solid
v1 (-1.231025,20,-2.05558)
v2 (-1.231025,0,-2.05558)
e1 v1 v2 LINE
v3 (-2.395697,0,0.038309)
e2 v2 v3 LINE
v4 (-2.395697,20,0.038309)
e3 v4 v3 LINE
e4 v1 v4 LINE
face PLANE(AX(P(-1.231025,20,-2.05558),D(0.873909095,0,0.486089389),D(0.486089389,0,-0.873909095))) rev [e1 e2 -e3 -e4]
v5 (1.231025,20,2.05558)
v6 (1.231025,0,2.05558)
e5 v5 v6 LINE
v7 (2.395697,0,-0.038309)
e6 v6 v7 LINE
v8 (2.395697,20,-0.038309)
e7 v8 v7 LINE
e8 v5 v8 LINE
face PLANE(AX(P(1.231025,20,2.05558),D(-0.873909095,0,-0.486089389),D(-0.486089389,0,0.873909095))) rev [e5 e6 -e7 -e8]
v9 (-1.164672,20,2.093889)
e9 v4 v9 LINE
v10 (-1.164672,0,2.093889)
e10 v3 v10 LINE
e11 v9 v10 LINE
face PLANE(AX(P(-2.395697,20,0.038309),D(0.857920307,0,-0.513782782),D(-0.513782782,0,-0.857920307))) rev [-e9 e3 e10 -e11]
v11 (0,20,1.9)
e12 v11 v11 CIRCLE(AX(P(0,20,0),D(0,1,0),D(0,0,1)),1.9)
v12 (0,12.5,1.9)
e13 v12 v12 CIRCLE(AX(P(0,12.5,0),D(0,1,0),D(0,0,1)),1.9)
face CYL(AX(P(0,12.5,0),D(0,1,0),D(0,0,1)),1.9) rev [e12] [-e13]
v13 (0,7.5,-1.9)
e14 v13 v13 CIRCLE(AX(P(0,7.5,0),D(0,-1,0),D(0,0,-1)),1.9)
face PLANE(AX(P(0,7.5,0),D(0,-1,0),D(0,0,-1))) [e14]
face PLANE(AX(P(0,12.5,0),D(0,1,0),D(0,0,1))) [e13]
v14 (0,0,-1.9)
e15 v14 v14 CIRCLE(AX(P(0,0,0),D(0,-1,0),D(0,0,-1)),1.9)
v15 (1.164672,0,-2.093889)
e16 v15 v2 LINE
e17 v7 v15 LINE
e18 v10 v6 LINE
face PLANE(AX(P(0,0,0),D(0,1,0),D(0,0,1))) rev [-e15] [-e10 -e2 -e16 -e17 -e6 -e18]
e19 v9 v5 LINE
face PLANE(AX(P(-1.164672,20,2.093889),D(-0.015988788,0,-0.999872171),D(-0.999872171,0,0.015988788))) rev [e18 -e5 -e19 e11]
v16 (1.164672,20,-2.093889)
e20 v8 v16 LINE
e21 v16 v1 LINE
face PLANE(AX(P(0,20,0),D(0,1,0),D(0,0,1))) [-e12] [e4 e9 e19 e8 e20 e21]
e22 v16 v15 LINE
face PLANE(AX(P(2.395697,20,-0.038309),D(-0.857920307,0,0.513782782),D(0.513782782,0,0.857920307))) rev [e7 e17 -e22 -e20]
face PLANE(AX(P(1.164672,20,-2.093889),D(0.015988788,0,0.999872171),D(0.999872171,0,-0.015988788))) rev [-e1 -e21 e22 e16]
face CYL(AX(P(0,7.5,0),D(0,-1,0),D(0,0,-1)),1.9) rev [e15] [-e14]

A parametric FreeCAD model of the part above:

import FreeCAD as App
import Part
import Sketcher
from FreeCAD import Vector

doc = App.newDocument("Part")
params = doc.addObject("Spreadsheet::Sheet", "Params")
for row, (alias, value) in enumerate([
    ("pad1_length", "20 mm"),
    ("sketch2_diameter", "3.8 mm"),
    ("pocket1_length", "7.5 mm"),
    ("sketch3_diameter", "3.8 mm"),
    ("pocket2_length", "7.5 mm"),
], start=1):
    params.set(f"A{row}", alias)
    params.set(f"B{row}", "=" + value)
    params.setAlias(f"B{row}", alias)

body = doc.addObject("PartDesign::Body", "Body")

sketch1 = body.newObject("Sketcher::SketchObject", "Sketch")
sketch1.AttachmentSupport = (doc.getObject("XZ_Plane"), [""])
sketch1.MapMode = "FlatFace"
sketch1.addGeometry([
    Part.LineSegment(Vector(1.2, 2.1, 0), Vector(2.4, 0, 0)),
    Part.LineSegment(Vector(2.4, 0, 0), Vector(1.2, -2.1, 0)),
    Part.LineSegment(Vector(1.2, -2.1, 0), Vector(-1.2, -2.1, 0)),
    Part.LineSegment(Vector(-1.2, -2.1, 0), Vector(-2.4, 0, 0)),
    Part.LineSegment(Vector(-2.4, 0, 0), Vector(-1.2, 2.1, 0)),
    Part.LineSegment(Vector(-1.2, 2.1, 0), Vector(1.2, 2.1, 0)),
], False)
sketch1.addConstraint([
    Sketcher.Constraint("Coincident", 0, 2, 1, 1),
    Sketcher.Constraint("Coincident", 1, 2, 2, 1),
    Sketcher.Constraint("Coincident", 2, 2, 3, 1),
    Sketcher.Constraint("Coincident", 3, 2, 4, 1),
    Sketcher.Constraint("Coincident", 4, 2, 5, 1),
    Sketcher.Constraint("Coincident", 5, 2, 0, 1),
    Sketcher.Constraint("Symmetric", 0, 2, 3, 2, -1, 1),
    Sketcher.Constraint("Symmetric", 1, 2, 4, 2, -1, 1),
    Sketcher.Constraint("Symmetric", 2, 2, 5, 2, -1, 1),
    Sketcher.Constraint("Equal", 0, 1),
    Sketcher.Constraint("Equal", 1, 2),
    Sketcher.Constraint("DistanceY", 1, 2, 3, 2, 2.132199),
    Sketcher.Constraint("DistanceY", 0, 2, -1, 1, 0.038309),
    Sketcher.Constraint("DistanceX", -1, 1, 1, 2, 1.164672),
    Sketcher.Constraint("DistanceY", 2, 2, -1, 1, 2.05558),
])
pad1 = body.newObject("PartDesign::Pad", "Pad")
pad1.Profile = sketch1
pad1.setExpression("Length", "Params.pad1_length")
pad1.Reversed = True

sketch2 = body.newObject("Sketcher::SketchObject", "Sketch001")
sketch2.AttachmentSupport = (doc.getObject("XZ_Plane"), [""])
sketch2.MapMode = "FlatFace"
sketch2.AttachmentOffset = App.Placement(Vector(0, 0, -20), App.Rotation())
sketch2.addGeometry(Part.Circle(Vector(0, 0, 0), Vector(0, 0, 1), 1.9), False)
sketch2.addConstraint([
    Sketcher.Constraint("Coincident", 0, 3, -1, 1),
    Sketcher.Constraint("Diameter", 0, 3.8),
])
sketch2.setExpression("Constraints[1]", "Params.sketch2_diameter")
pocket1 = body.newObject("PartDesign::Pocket", "Pocket")
pocket1.Profile = sketch2
pocket1.setExpression("Length", "Params.pocket1_length")
pocket1.Reversed = True

sketch3 = body.newObject("Sketcher::SketchObject", "Sketch002")
sketch3.AttachmentSupport = (doc.getObject("XZ_Plane"), [""])
sketch3.MapMode = "FlatFace"
sketch3.AttachmentOffset = App.Placement(Vector(0, 0, -7.5), App.Rotation())
sketch3.addGeometry(Part.Circle(Vector(0, 0, 0), Vector(0, 0, 1), 1.9), False)
sketch3.addConstraint([
    Sketcher.Constraint("Coincident", 0, 3, -1, 1),
    Sketcher.Constraint("Diameter", 0, 3.8),
])
sketch3.setExpression("Constraints[1]", "Params.sketch3_diameter")
pocket2 = body.newObject("PartDesign::Pocket", "Pocket001")
pocket2.Profile = sketch3
pocket2.setExpression("Length", "Params.pocket2_length")
pocket2.Reversed = True

doc.recompute()
